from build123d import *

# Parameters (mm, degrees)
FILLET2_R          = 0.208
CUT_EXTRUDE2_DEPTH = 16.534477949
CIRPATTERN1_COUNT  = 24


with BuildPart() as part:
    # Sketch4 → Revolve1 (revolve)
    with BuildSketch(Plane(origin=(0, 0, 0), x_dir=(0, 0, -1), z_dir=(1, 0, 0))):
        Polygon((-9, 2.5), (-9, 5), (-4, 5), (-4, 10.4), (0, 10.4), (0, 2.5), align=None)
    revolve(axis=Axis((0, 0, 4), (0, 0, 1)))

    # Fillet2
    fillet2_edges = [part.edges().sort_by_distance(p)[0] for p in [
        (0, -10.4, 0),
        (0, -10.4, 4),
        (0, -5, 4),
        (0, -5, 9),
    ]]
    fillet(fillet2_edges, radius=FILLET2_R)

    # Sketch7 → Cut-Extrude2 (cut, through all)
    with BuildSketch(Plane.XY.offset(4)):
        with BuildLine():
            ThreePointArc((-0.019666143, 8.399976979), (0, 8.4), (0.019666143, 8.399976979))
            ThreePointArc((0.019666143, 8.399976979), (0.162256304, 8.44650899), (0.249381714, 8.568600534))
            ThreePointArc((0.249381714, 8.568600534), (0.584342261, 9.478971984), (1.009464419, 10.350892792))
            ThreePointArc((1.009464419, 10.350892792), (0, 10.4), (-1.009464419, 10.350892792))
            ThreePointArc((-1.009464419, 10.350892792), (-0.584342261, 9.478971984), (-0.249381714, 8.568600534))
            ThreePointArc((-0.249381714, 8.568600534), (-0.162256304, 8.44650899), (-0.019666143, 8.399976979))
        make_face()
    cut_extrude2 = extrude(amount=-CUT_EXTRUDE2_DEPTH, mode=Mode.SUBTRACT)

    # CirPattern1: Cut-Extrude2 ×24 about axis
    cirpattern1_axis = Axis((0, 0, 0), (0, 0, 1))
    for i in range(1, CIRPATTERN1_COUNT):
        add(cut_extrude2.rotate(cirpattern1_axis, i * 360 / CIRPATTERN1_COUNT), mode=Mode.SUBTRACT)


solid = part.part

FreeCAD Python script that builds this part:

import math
import FreeCAD as App
import Part
import Sketcher


def edges_at(feature, points):
    """Names of the edges that pass closest to the given points."""
    edges = feature.Shape.Edges
    near = lambda p: min(range(len(edges)), key=lambda i: edges[i].distToShape(Part.Vertex(*p))[0])
    return sorted({f"Edge{near(p) + 1}" for p in points})

doc = App.newDocument("Part")
params = doc.addObject("Spreadsheet::Sheet", "Params")
for row, (alias, value) in enumerate([
    ("sketch1_height", "9 mm"),
    ("sketch1_height2", "4 mm"),
    ("sketch1_width", "2.5 mm"),
    ("sketch1_width2", "7.9 mm"),
    ("revolution_angle", "360 deg"),
    ("fillet_radius", "0.208 mm"),
    ("sketch2_radius", "9.6 mm"),
    ("sketch2_radius2", "10.4 mm"),
], start=1):
    params.set(f"A{row}", alias)
    params.set(f"B{row}", "=" + value)
    params.setAlias(f"B{row}", alias)

body = doc.addObject("PartDesign::Body", "Body")

# Sketch on YZ plane
sketch1 = body.newObject("Sketcher::SketchObject", "Sketch")
sketch1.AttachmentSupport = (doc.getObject("YZ_Plane"), [""])
sketch1.MapMode = "FlatFace"
sketch1.addGeometry([
    Part.LineSegment(App.Vector(5, 9, 0), App.Vector(2.5, 9, 0)),  # 0
    Part.LineSegment(App.Vector(2.5, 9, 0), App.Vector(2.5, 0, 0)),  # 1
    Part.LineSegment(App.Vector(2.5, 0, 0), App.Vector(10.4, 0, 0)),  # 2
    Part.LineSegment(App.Vector(10.4, 0, 0), App.Vector(10.4, 4, 0)),  # 3
    Part.LineSegment(App.Vector(10.4, 4, 0), App.Vector(5, 4, 0)),  # 4
    Part.LineSegment(App.Vector(5, 4, 0), App.Vector(5, 9, 0)),  # 5
], False)
sketch1.addConstraint([
    Sketcher.Constraint("Coincident", 0, 2, 1, 1),
    Sketcher.Constraint("Coincident", 1, 2, 2, 1),
    Sketcher.Constraint("Coincident", 2, 2, 3, 1),
    Sketcher.Constraint("Coincident", 3, 2, 4, 1),
    Sketcher.Constraint("Coincident", 4, 2, 5, 1),
    Sketcher.Constraint("Coincident", 5, 2, 0, 1),
    Sketcher.Constraint("Horizontal", 0),
    Sketcher.Constraint("Vertical", 1),
    Sketcher.Constraint("Horizontal", 2),
    Sketcher.Constraint("Vertical", 3),
    Sketcher.Constraint("Horizontal", 4),
    Sketcher.Constraint("Vertical", 5),
    Sketcher.Constraint("PointOnObject", 1, 2, -1),
    Sketcher.Constraint("DistanceY", 1, 2, 1, 1, 9.0),
    Sketcher.Constraint("DistanceY", 3, 1, 3, 2, 4.0),
    Sketcher.Constraint("DistanceX", 0, 2, 0, 1, 2.5),
    Sketcher.Constraint("DistanceX", 2, 1, 2, 2, 7.9),
    Sketcher.Constraint("DistanceX", -1, 1, 4, 2, 5.0),
])
sketch1.setExpression("Constraints[13]", "Params.sketch1_height")
sketch1.setExpression("Constraints[14]", "Params.sketch1_height2")
sketch1.setExpression("Constraints[15]", "Params.sketch1_width")
sketch1.setExpression("Constraints[16]", "Params.sketch1_width2")
revolution = body.newObject("PartDesign::Revolution", "Revolution")
revolution.Profile = sketch1
revolution.ReferenceAxis = (sketch1, ["V_Axis"])
revolution.setExpression("Angle", "Params.revolution_angle")
doc.recompute()

fillet = body.newObject("PartDesign::Fillet", "Fillet")
fillet.Base = (revolution, edges_at(revolution, [
    (0, -10.4, 0),
    (0, -10.4, 4),
    (0, -5, 4),
    (0, -5, 9),
]))
fillet.setExpression("Radius", "Params.fillet_radius")

# Sketch on XY plane
sketch2 = body.newObject("Sketcher::SketchObject", "Sketch001")
sketch2.AttachmentSupport = (doc.getObject("XY_Plane"), [""])
sketch2.MapMode = "FlatFace"
sketch2.AttachmentOffset = App.Placement(App.Vector(0, 0, 4), App.Rotation())
sketch2.addGeometry([
    Part.ArcOfCircle(Part.Circle(App.Vector(0, 0, 0), App.Vector(0, 0, 1), 8.4), math.radians(89.87), math.radians(90.13)),  # 0
    Part.ArcOfCircle(Part.Circle(App.Vector(0.02, 8.64, 0), App.Vector(0, 0, 1), 0.24), math.radians(-90), math.radians(-17)),  # 1
    Part.ArcOfCircle(Part.Circle(App.Vector(9.415, 5.713, 0), App.Vector(0, 0, 1), 9.6), math.radians(151.11), math.radians(162.7)),  # 2
    Part.ArcOfCircle(Part.Circle(App.Vector(0, 0, 0), App.Vector(0, 0, 1), 10.4), math.radians(84.43), math.radians(95.57)),  # 3
    Part.ArcOfCircle(Part.Circle(App.Vector(-9.415, 5.713, 0), App.Vector(0, 0, 1), 9.6), math.radians(17.3), math.radians(28.89)),  # 4
    Part.ArcOfCircle(Part.Circle(App.Vector(-0.02, 8.64, 0), App.Vector(0, 0, 1), 0.24), math.radians(-163), math.radians(-90)),  # 5
], False)
sketch2.addConstraint([
    Sketcher.Constraint("Tangent", 0, 1, 1, 1),
    Sketcher.Constraint("Tangent", 1, 2, 2, 2),
    Sketcher.Constraint("Coincident", 2, 1, 3, 1),
    Sketcher.Constraint("Coincident", 3, 2, 4, 2),
    Sketcher.Constraint("Tangent", 4, 1, 5, 1),
    Sketcher.Constraint("Tangent", 5, 2, 0, 2),
    Sketcher.Constraint("Coincident", 3, 3, -1, 1),
    Sketcher.Constraint("Equal", 2, 4),
    Sketcher.Constraint("Equal", 1, 5),
    Sketcher.Constraint("Symmetric", 2, 3, 4, 3, -2),
    Sketcher.Constraint("PointOnObject", 0, 3, -2),
    Sketcher.Constraint("Radius", 2, 9.6),
    Sketcher.Constraint("Radius", 3, 10.4),
    Sketcher.Constraint("Radius", 0, 8.400107),
    Sketcher.Constraint("Radius", 1, 0.240017),
    Sketcher.Constraint("DistanceY", -1, 1, 1, 2, 8.568601),
    Sketcher.Constraint("DistanceY", 2, 3, 0, 1, 2.686899),
    Sketcher.Constraint("DistanceY", 1, 3, 2, 1, 1.710899),
])
sketch2.setExpression("Constraints[11]", "Params.sketch2_radius")
sketch2.setExpression("Constraints[12]", "Params.sketch2_radius2")
pocket1 = body.newObject("PartDesign::Pocket", "Pocket")
pocket1.Profile = sketch2
pocket1.Type = "ThroughAll"
doc.recompute()

polarpattern = body.newObject("PartDesign::PolarPattern", "PolarPattern")
polarpattern.Originals = [pocket1]
polarpattern.Axis = (doc.getObject("Z_Axis"), [""])
polarpattern.Angle = 360
polarpattern.Occurrences = 24
body.Tip = polarpattern

doc.recompute()
